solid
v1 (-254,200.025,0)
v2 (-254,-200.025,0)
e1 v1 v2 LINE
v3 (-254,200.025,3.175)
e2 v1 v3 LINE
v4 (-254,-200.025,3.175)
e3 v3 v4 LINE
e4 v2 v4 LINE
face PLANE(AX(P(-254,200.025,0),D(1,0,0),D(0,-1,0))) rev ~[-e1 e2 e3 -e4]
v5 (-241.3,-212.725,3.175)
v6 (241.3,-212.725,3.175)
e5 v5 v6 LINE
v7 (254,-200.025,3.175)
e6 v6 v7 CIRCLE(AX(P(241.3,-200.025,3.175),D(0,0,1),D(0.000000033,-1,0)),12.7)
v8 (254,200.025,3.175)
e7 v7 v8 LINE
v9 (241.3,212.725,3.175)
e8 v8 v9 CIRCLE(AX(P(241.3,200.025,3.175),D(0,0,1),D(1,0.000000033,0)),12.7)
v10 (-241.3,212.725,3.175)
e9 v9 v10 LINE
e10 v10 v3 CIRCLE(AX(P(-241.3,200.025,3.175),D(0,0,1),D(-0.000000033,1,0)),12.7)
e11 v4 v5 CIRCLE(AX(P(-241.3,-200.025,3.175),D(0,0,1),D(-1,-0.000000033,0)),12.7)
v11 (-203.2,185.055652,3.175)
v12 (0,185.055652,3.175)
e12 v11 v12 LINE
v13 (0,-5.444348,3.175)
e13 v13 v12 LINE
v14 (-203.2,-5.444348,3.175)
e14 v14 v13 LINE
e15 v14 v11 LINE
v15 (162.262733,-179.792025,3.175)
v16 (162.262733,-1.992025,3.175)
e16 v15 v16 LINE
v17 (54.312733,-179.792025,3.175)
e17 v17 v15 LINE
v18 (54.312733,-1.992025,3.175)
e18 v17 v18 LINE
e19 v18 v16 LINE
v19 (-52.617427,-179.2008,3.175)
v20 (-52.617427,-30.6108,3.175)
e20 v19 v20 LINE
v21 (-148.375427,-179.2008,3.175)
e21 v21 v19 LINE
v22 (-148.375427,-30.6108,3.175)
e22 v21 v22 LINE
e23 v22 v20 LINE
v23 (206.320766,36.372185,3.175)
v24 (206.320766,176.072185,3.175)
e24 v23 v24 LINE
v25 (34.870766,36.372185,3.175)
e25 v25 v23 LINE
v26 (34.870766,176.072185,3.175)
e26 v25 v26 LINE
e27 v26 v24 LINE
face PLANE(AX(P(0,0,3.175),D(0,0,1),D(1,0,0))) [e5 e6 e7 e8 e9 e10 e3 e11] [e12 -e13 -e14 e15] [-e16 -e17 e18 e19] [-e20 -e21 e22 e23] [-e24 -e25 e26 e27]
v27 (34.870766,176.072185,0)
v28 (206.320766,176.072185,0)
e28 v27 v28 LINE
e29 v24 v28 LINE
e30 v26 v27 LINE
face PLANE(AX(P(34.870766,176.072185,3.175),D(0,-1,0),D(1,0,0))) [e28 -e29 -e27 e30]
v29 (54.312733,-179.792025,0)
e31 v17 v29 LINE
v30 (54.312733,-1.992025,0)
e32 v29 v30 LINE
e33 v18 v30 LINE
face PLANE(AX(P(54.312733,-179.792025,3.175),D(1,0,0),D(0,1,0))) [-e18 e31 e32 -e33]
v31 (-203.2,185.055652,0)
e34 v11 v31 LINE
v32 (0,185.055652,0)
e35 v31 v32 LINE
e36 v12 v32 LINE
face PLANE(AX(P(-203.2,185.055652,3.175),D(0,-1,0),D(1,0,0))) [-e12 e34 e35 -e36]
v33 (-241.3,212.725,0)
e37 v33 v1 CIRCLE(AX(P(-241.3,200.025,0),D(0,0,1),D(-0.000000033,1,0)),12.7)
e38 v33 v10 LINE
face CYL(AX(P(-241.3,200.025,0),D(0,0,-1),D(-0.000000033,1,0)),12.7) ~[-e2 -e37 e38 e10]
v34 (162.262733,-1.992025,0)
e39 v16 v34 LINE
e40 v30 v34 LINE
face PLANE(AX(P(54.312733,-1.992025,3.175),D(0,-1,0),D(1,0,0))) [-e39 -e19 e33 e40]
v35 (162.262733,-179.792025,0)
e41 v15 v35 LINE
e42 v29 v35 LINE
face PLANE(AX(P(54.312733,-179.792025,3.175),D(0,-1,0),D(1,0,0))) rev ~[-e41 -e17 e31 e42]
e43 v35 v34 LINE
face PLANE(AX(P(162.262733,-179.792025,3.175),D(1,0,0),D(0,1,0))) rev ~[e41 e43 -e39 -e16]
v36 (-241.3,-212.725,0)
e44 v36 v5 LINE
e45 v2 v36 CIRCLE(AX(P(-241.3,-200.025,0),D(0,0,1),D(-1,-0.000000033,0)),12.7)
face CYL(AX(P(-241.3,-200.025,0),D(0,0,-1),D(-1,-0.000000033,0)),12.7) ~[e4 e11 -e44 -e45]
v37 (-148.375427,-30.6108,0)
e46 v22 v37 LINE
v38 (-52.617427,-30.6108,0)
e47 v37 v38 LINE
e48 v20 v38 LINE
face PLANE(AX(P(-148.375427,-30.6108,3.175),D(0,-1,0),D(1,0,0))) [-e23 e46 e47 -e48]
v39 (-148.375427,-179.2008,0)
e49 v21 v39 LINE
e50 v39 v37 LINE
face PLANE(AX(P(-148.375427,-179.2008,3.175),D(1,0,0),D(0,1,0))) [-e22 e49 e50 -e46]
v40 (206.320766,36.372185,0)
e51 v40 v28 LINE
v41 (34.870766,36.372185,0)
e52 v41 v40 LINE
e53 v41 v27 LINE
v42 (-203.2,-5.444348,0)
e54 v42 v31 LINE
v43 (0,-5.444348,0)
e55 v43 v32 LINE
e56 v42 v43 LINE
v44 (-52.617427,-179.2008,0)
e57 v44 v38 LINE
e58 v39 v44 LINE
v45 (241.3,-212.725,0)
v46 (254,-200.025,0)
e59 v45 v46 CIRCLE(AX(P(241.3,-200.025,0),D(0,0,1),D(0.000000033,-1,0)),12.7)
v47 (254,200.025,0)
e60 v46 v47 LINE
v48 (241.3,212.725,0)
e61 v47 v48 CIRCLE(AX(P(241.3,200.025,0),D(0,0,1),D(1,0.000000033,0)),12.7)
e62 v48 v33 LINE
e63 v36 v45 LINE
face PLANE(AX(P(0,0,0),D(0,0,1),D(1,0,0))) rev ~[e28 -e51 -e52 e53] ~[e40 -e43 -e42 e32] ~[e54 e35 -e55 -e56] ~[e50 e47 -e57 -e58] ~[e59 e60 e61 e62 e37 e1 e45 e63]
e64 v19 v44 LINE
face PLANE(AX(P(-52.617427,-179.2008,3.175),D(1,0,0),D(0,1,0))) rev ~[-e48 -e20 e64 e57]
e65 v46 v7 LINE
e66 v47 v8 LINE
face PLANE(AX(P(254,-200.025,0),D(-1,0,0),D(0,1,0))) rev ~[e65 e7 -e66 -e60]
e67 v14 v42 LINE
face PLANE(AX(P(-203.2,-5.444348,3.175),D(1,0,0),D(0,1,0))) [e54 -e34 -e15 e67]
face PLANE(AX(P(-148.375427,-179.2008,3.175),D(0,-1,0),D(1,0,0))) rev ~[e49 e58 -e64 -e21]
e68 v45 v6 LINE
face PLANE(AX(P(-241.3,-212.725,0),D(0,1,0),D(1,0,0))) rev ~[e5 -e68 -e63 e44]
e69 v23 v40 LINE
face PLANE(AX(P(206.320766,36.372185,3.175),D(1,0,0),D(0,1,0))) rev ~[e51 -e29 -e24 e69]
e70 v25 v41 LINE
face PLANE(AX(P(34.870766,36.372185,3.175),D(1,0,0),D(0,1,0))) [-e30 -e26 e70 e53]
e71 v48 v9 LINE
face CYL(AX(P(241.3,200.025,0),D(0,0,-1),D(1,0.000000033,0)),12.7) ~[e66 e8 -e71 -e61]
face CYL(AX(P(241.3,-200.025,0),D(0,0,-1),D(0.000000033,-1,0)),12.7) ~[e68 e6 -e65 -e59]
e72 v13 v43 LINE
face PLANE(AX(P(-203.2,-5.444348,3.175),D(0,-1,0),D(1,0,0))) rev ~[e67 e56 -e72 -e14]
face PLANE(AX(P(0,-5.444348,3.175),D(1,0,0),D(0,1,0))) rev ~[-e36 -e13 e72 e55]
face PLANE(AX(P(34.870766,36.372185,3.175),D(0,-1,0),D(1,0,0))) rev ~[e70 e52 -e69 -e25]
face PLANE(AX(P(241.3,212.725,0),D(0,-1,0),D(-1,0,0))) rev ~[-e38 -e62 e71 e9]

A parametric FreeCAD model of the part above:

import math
import FreeCAD as App
import Part
import Sketcher
from FreeCAD import Vector
Q = App.Units.Quantity

doc = App.newDocument("Part")
body = doc.addObject("PartDesign::Body", "Body")

# Sketch on XY plane
sketch1 = doc.addObject("Sketcher::SketchObject", "Sketch")
body.addObject(sketch1)
sketch1.AttachmentSupport = (doc.XY_Plane, [""])
sketch1.MapMode = "FlatFace"
sketch1.addGeometry([
    Part.ArcOfCircle(Part.Circle(Vector(241, 200, 0), Vector(0, 0, 1), 13), math.radians(0), math.radians(90)),  # 0
    Part.LineSegment(Vector(241, 213, 0), Vector(-241, 213, 0)),  # 1
    Part.ArcOfCircle(Part.Circle(Vector(-241, 200, 0), Vector(0, 0, 1), 13), math.radians(90), math.radians(180)),  # 2
    Part.LineSegment(Vector(-254, 200, 0), Vector(-254, -200, 0)),  # 3
    Part.ArcOfCircle(Part.Circle(Vector(-241, -200, 0), Vector(0, 0, 1), 13), math.radians(-180), math.radians(-90)),  # 4
    Part.LineSegment(Vector(-241, -213, 0), Vector(241, -213, 0)),  # 5
    Part.ArcOfCircle(Part.Circle(Vector(241, -200, 0), Vector(0, 0, 1), 13), math.radians(-90), math.radians(0)),  # 6
    Part.LineSegment(Vector(254, -200, 0), Vector(254, 200, 0)),  # 7
], False)
sketch1.addConstraint([
    Sketcher.Constraint("Tangent", 0, 2, 1, 1),
    Sketcher.Constraint("Tangent", 1, 2, 2, 1),
    Sketcher.Constraint("Tangent", 2, 2, 3, 1),
    Sketcher.Constraint("Tangent", 3, 2, 4, 1),
    Sketcher.Constraint("Tangent", 4, 2, 5, 1),
    Sketcher.Constraint("Tangent", 5, 2, 6, 1),
    Sketcher.Constraint("Tangent", 6, 2, 7, 1),
    Sketcher.Constraint("Tangent", 7, 2, 0, 1),
    Sketcher.Constraint("Horizontal", 1),
    Sketcher.Constraint("Vertical", 3),
    Sketcher.Constraint("Horizontal", 5),
    Sketcher.Constraint("Vertical", 7),
    Sketcher.Constraint("Equal", 0, 2),
    Sketcher.Constraint("Equal", 2, 4),
    Sketcher.Constraint("Equal", 4, 6),
    Sketcher.Constraint("Symmetric", 0, 3, 4, 3, -1, 1),
    Sketcher.Constraint("Radius", 0, Q("0.5 in")),
    Sketcher.Constraint("DistanceX", 1, 2, 1, 1, Q("19 in")),
    Sketcher.Constraint("DistanceY", 3, 2, 3, 1, Q("15.75 in")),
])
pad1 = doc.addObject("PartDesign::Pad", "Pad")
body.addObject(pad1)
pad1.Profile = sketch1
pad1.Length = Q("0.125 in")

# Sketch on XY plane
sketch2 = doc.addObject("Sketcher::SketchObject", "Sketch001")
body.addObject(sketch2)
sketch2.AttachmentSupport = (doc.XY_Plane, [""])
sketch2.MapMode = "FlatFace"
sketch2.AttachmentOffset = App.Placement(Vector(0, 0, 0.125 * 25.4), App.Rotation())
sketch2.addGeometry([
    Part.LineSegment(Vector(-203, 185, 0), Vector(-203, -5, 0)),  # 0
    Part.LineSegment(Vector(-203, -5, 0), Vector(0, -5, 0)),  # 1
    Part.LineSegment(Vector(0, -5, 0), Vector(0, 185, 0)),  # 2
    Part.LineSegment(Vector(0, 185, 0), Vector(-203, 185, 0)),  # 3
    Part.LineSegment(Vector(-148, -31, 0), Vector(-148, -179, 0)),  # 4
    Part.LineSegment(Vector(-148, -179, 0), Vector(-53, -179, 0)),  # 5
    Part.LineSegment(Vector(-53, -179, 0), Vector(-53, -31, 0)),  # 6
    Part.LineSegment(Vector(-53, -31, 0), Vector(-148, -31, 0)),  # 7
    Part.LineSegment(Vector(54, -2, 0), Vector(54, -180, 0)),  # 8
    Part.LineSegment(Vector(54, -180, 0), Vector(162, -180, 0)),  # 9
    Part.LineSegment(Vector(162, -180, 0), Vector(162, -2, 0)),  # 10
    Part.LineSegment(Vector(162, -2, 0), Vector(54, -2, 0)),  # 11
    Part.LineSegment(Vector(35, 176, 0), Vector(35, 36, 0)),  # 12
    Part.LineSegment(Vector(35, 36, 0), Vector(206, 36, 0)),  # 13
    Part.LineSegment(Vector(206, 36, 0), Vector(206, 176, 0)),  # 14
    Part.LineSegment(Vector(206, 176, 0), Vector(35, 176, 0)),  # 15
], False)
sketch2.addConstraint([
    Sketcher.Constraint("Coincident", 0, 2, 1, 1),
    Sketcher.Constraint("Coincident", 1, 2, 2, 1),
    Sketcher.Constraint("Coincident", 2, 2, 3, 1),
    Sketcher.Constraint("Coincident", 3, 2, 0, 1),
    Sketcher.Constraint("Coincident", 4, 2, 5, 1),
    Sketcher.Constraint("Coincident", 5, 2, 6, 1),
    Sketcher.Constraint("Coincident", 6, 2, 7, 1),
    Sketcher.Constraint("Coincident", 7, 2, 4, 1),
    Sketcher.Constraint("Coincident", 8, 2, 9, 1),
    Sketcher.Constraint("Coincident", 9, 2, 10, 1),
    Sketcher.Constraint("Coincident", 10, 2, 11, 1),
    Sketcher.Constraint("Coincident", 11, 2, 8, 1),
    Sketcher.Constraint("Coincident", 12, 2, 13, 1),
    Sketcher.Constraint("Coincident", 13, 2, 14, 1),
    Sketcher.Constraint("Coincident", 14, 2, 15, 1),
    Sketcher.Constraint("Coincident", 15, 2, 12, 1),
    Sketcher.Constraint("Vertical", 0),
    Sketcher.Constraint("Horizontal", 1),
    Sketcher.Constraint("Vertical", 2),
    Sketcher.Constraint("Horizontal", 3),
    Sketcher.Constraint("Vertical", 4),
    Sketcher.Constraint("Horizontal", 5),
    Sketcher.Constraint("Vertical", 6),
    Sketcher.Constraint("Horizontal", 7),
    Sketcher.Constraint("Vertical", 8),
    Sketcher.Constraint("Horizontal", 9),
    Sketcher.Constraint("Vertical", 10),
    Sketcher.Constraint("Horizontal", 11),
    Sketcher.Constraint("Vertical", 12),
    Sketcher.Constraint("Horizontal", 13),
    Sketcher.Constraint("Vertical", 14),
    Sketcher.Constraint("Horizontal", 15),
    Sketcher.Constraint("PointOnObject", 1, 2, -2),
    Sketcher.Constraint("DistanceX", 1, 1, 1, 2, Q("8 in")),
    Sketcher.Constraint("DistanceY", 8, 2, 8, 1, Q("7 in")),
    Sketcher.Constraint("DistanceY", 0, 2, 0, 1, Q("7.5 in")),
    Sketcher.Constraint("DistanceY", 12, 2, 12, 1, Q("5.5 in")),
    Sketcher.Constraint("DistanceX", 5, 1, 5, 2, Q("3.77 in")),
    Sketcher.Constraint("DistanceX", 9, 1, 9, 2, Q("4.25 in")),
    Sketcher.Constraint("DistanceX", 13, 1, 13, 2, Q("6.75 in")),
    Sketcher.Constraint("DistanceY", 4, 2, 4, 1, Q("5.85 in")),
    Sketcher.Constraint("DistanceY", 4, 2, -1, 1, 179.2008),
    Sketcher.Constraint("DistanceY", -1, 1, 2, 2, 185.055652),
    Sketcher.Constraint("DistanceX", 5, 2, 8, 2, 106.93016),
    Sketcher.Constraint("DistanceY", 11, 2, 12, 2, 38.36421),
    Sketcher.Constraint("DistanceX", 4, 2, -1, 1, 148.375427),
    Sketcher.Constraint("DistanceY", 8, 2, -1, 1, 179.792025),
    Sketcher.Constraint("DistanceX", -1, 1, 12, 2, 34.870766),
])
pocket1 = doc.addObject("PartDesign::Pocket", "Pocket")
body.addObject(pocket1)
pocket1.Profile = sketch2
pocket1.Length = Q("1 in")

doc.recompute()
